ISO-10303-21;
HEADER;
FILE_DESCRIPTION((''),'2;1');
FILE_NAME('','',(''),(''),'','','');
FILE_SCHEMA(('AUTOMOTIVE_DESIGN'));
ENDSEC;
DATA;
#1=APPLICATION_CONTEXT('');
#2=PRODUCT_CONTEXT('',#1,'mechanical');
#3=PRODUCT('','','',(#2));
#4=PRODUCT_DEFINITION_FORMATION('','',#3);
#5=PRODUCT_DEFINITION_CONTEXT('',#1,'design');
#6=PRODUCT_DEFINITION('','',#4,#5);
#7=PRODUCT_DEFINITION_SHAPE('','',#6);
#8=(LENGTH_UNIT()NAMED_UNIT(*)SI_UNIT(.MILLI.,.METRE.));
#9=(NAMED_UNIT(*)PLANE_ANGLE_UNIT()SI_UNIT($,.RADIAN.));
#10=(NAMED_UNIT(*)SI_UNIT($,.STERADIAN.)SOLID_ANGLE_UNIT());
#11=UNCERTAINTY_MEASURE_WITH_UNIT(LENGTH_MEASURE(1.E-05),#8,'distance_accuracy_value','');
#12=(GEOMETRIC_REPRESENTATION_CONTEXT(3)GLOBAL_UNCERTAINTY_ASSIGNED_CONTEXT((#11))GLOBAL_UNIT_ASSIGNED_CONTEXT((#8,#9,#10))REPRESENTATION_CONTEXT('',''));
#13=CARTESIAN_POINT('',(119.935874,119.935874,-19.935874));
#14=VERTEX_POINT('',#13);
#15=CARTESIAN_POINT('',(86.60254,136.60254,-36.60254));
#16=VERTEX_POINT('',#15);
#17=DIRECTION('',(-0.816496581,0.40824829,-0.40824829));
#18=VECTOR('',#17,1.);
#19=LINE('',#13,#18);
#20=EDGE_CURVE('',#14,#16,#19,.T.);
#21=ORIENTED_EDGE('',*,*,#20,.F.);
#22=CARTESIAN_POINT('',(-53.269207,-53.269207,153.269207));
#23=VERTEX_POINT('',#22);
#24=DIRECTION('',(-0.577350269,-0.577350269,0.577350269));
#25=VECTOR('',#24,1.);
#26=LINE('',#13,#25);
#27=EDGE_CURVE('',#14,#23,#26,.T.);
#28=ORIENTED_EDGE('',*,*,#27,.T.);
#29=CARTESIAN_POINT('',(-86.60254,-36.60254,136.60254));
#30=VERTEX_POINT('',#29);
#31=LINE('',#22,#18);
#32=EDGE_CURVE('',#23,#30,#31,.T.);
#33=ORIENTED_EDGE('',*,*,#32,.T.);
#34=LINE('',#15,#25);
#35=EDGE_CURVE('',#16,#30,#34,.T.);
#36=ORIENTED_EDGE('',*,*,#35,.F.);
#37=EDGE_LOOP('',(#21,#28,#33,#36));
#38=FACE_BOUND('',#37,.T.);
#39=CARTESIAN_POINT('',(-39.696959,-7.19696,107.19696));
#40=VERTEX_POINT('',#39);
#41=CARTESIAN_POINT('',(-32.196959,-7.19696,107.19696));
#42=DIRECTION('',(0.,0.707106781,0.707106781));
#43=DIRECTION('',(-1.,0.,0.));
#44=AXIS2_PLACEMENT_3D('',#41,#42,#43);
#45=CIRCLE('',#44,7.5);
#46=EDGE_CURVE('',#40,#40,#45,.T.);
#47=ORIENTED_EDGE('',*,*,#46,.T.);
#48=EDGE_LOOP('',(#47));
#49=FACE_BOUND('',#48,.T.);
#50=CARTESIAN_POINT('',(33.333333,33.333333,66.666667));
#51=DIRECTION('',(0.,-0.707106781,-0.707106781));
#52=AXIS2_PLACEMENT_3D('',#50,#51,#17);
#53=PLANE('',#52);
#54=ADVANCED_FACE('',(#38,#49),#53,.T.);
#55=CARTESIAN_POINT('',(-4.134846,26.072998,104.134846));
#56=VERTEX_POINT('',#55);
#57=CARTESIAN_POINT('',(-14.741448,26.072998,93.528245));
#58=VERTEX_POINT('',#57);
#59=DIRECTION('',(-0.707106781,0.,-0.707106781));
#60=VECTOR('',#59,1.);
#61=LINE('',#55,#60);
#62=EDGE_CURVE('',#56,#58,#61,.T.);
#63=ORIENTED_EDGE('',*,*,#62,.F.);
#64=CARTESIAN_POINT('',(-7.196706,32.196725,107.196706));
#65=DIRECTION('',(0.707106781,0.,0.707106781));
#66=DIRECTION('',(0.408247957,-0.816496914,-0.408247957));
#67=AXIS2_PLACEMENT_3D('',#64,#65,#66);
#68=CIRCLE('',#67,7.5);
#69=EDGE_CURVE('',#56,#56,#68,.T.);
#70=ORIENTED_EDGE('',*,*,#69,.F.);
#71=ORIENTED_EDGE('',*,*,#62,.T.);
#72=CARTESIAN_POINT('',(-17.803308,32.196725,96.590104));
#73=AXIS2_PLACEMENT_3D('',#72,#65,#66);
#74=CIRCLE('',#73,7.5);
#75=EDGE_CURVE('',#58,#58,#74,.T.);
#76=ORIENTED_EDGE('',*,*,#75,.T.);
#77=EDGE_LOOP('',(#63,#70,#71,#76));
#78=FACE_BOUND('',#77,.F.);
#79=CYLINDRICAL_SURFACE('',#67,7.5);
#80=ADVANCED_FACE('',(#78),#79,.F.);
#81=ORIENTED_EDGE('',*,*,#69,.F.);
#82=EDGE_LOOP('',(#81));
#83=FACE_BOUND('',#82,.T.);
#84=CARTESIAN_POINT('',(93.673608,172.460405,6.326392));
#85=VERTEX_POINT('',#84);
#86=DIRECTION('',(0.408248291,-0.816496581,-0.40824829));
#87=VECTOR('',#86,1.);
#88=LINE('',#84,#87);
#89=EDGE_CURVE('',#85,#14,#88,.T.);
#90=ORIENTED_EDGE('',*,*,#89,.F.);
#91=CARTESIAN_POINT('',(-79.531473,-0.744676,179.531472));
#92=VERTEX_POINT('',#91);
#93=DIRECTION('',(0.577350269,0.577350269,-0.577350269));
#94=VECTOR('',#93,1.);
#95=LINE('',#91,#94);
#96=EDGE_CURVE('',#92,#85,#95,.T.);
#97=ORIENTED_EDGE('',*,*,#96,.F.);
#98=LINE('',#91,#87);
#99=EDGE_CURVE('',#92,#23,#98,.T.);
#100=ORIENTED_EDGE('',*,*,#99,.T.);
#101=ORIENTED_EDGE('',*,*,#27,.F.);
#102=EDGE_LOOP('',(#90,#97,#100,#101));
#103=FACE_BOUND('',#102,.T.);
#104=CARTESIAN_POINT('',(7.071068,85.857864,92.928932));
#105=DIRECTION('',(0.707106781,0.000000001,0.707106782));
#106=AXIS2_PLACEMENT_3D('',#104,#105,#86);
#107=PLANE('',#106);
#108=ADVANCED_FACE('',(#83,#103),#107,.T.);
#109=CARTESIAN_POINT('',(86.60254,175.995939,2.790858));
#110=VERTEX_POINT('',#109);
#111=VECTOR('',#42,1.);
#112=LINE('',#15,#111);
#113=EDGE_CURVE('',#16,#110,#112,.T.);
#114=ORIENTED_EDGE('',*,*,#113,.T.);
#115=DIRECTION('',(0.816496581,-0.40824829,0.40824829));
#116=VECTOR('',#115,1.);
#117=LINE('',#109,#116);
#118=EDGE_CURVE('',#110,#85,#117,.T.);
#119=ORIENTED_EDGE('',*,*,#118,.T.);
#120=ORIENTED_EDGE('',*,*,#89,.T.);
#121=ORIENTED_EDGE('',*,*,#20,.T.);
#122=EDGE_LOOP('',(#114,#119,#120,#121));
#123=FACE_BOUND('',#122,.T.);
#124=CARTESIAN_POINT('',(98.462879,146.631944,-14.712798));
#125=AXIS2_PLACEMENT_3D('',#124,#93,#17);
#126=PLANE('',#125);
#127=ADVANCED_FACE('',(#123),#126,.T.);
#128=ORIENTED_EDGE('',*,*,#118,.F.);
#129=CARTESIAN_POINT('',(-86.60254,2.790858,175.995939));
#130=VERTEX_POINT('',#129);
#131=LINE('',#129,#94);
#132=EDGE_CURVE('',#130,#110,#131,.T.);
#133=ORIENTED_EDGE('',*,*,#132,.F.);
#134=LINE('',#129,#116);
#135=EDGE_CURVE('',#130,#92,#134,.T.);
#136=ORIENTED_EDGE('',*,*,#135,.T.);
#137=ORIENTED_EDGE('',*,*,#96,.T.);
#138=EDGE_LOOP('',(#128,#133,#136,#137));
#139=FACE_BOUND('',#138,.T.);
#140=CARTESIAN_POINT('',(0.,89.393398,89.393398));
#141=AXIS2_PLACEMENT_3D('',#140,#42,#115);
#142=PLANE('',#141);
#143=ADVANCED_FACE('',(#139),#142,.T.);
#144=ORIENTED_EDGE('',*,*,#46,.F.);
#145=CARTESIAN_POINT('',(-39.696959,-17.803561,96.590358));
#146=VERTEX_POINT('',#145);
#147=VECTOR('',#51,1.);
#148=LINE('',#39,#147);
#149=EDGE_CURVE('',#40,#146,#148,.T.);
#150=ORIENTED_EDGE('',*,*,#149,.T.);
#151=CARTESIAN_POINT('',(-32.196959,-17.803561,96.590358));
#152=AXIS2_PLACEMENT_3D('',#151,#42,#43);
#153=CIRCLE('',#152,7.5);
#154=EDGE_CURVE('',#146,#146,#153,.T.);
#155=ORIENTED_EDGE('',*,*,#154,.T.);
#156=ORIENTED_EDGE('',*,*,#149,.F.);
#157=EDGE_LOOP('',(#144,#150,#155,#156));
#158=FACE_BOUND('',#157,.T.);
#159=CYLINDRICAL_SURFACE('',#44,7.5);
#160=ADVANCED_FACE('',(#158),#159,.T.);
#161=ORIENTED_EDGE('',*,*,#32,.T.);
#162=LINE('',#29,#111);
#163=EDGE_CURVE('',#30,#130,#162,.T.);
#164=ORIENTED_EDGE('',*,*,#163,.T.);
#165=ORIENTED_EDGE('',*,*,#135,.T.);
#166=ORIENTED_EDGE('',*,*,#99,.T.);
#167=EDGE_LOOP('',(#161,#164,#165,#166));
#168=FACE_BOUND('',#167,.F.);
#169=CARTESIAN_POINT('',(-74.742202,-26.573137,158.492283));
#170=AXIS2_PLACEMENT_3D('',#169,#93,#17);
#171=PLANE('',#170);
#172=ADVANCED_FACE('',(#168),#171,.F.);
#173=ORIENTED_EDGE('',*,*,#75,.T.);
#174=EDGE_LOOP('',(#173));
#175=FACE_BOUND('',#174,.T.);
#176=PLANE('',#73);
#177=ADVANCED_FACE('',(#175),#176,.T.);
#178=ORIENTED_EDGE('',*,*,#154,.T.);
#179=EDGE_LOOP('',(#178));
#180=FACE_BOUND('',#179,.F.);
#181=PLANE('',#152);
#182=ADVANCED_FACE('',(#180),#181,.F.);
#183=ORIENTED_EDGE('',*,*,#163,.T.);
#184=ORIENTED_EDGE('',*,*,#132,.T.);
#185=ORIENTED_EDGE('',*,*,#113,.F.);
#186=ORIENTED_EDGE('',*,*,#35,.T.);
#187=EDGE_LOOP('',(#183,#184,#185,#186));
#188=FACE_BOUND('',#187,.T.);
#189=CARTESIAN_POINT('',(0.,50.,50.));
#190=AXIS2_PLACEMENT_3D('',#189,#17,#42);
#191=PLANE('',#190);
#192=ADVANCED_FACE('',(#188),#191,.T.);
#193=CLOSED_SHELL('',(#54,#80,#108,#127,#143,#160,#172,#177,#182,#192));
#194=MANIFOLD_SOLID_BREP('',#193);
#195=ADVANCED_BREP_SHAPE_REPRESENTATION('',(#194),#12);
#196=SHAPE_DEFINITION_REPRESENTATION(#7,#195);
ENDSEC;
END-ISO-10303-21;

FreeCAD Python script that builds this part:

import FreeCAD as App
import Part
import Sketcher

V = App.Vector
Q = App.Units.Quantity

doc = App.newDocument("Part")
body = doc.addObject("PartDesign::Body", "Body")

sketch1 = body.newObject("Sketcher::SketchObject", "Sketch")
sketch1.Placement = App.Placement(V(0, -50, 50), App.Rotation(V(0.816496581, -0.40824829, -0.40824829), V(0, -0.707106781, 0.707106781), V(-0.577350269, -0.577350269, -0.577350269), "ZXY"))
sketch1.addGeometry([
    Part.LineSegment(V(0, 0, 0), V(0, 55.710678, 0)),
    Part.LineSegment(V(0, 55.710678, 0), V(-8.660254, 55.710678, 0)),
    Part.LineSegment(V(-8.660254, 55.710678, 0), V(-40.824829, 0, 0)),
    Part.LineSegment(V(-40.824829, 0, 0), V(0, 0, 0)),
], False)
sketch1.addConstraint([
    Sketcher.Constraint("Coincident", 0, 2, 1, 1),
    Sketcher.Constraint("Coincident", 1, 2, 2, 1),
    Sketcher.Constraint("Coincident", 2, 2, 3, 1),
    Sketcher.Constraint("Coincident", 3, 2, 0, 1),
    Sketcher.Constraint("Vertical", 0),
    Sketcher.Constraint("Horizontal", 1),
    Sketcher.Constraint("Horizontal", 3),
    Sketcher.Constraint("Coincident", 3, 2, -1, 1),
    Sketcher.Constraint("Angle", 2, Q("-120 deg")),
    Sketcher.Constraint("DistanceX", 3, 1, 3, 2, 40.824829),
    Sketcher.Constraint("Distance", 2, 64.32915),
])
pad1 = body.newObject("PartDesign::Pad", "Pad")
pad1.Profile = sketch1
pad1.Length = 300
pad1.Midplane = True

sketch2 = body.newObject("Sketcher::SketchObject", "Sketch001")
sketch2.Placement = App.Placement(V(0, -50, 50), App.Rotation(V(1, 0, 0), V(0, 0.707106781, 0.707106781), V(0, -0.707106781, 0.707106781), "ZXY"))
sketch2.addGeometry(Part.Circle(V(32.196959, 80.888716, 0), V(0, 0, 1), 7.5), False)
sketch2.addConstraint([
    Sketcher.Constraint("Diameter", 0, 15.0),
    Sketcher.Constraint("DistanceX", -1, 1, 0, 3, 32.196959),
    Sketcher.Constraint("DistanceY", -1, 1, 0, 3, 80.888716),
])
pad2 = body.newObject("PartDesign::Pad", "Pad001")
pad2.Profile = sketch2
pad2.Length = 15
pad2.Reversed = True

sketch3 = body.newObject("Sketcher::SketchObject", "Sketch002")
sketch3.Placement = App.Placement(V(-25, -50, 75), App.Rotation(V(-0.408247957, 0.816496914, -0.408247957), V(-0.577350505, -0.577349797, -0.577350505), V(-0.707106781, 0, 0.707106781), "ZXY"))
sketch3.addGeometry(Part.Circle(V(-11.75216, -47.456286, 0), V(0, 0, 1), 7.5), False)
sketch3.addConstraint([
    Sketcher.Constraint("Diameter", 0, 15.0),
    Sketcher.Constraint("DistanceX", 0, 3, -1, 1, 11.75216),
    Sketcher.Constraint("DistanceY", 0, 3, -1, 1, 47.456286),
])
pocket1 = body.newObject("PartDesign::Pocket", "Pocket")
pocket1.Profile = sketch3
pocket1.Length = 15
body2 = doc.addObject("PartDesign::Body", "Body001")
doc.recompute()

body.Placement = App.Placement(V(0, 0, 0), App.Rotation(V(0, 0, 1), 180))
boolean = body2.newObject("PartDesign::Boolean", "Boolean")
boolean.Type = "Fuse"
boolean.addObjects([body])

doc.recompute()
